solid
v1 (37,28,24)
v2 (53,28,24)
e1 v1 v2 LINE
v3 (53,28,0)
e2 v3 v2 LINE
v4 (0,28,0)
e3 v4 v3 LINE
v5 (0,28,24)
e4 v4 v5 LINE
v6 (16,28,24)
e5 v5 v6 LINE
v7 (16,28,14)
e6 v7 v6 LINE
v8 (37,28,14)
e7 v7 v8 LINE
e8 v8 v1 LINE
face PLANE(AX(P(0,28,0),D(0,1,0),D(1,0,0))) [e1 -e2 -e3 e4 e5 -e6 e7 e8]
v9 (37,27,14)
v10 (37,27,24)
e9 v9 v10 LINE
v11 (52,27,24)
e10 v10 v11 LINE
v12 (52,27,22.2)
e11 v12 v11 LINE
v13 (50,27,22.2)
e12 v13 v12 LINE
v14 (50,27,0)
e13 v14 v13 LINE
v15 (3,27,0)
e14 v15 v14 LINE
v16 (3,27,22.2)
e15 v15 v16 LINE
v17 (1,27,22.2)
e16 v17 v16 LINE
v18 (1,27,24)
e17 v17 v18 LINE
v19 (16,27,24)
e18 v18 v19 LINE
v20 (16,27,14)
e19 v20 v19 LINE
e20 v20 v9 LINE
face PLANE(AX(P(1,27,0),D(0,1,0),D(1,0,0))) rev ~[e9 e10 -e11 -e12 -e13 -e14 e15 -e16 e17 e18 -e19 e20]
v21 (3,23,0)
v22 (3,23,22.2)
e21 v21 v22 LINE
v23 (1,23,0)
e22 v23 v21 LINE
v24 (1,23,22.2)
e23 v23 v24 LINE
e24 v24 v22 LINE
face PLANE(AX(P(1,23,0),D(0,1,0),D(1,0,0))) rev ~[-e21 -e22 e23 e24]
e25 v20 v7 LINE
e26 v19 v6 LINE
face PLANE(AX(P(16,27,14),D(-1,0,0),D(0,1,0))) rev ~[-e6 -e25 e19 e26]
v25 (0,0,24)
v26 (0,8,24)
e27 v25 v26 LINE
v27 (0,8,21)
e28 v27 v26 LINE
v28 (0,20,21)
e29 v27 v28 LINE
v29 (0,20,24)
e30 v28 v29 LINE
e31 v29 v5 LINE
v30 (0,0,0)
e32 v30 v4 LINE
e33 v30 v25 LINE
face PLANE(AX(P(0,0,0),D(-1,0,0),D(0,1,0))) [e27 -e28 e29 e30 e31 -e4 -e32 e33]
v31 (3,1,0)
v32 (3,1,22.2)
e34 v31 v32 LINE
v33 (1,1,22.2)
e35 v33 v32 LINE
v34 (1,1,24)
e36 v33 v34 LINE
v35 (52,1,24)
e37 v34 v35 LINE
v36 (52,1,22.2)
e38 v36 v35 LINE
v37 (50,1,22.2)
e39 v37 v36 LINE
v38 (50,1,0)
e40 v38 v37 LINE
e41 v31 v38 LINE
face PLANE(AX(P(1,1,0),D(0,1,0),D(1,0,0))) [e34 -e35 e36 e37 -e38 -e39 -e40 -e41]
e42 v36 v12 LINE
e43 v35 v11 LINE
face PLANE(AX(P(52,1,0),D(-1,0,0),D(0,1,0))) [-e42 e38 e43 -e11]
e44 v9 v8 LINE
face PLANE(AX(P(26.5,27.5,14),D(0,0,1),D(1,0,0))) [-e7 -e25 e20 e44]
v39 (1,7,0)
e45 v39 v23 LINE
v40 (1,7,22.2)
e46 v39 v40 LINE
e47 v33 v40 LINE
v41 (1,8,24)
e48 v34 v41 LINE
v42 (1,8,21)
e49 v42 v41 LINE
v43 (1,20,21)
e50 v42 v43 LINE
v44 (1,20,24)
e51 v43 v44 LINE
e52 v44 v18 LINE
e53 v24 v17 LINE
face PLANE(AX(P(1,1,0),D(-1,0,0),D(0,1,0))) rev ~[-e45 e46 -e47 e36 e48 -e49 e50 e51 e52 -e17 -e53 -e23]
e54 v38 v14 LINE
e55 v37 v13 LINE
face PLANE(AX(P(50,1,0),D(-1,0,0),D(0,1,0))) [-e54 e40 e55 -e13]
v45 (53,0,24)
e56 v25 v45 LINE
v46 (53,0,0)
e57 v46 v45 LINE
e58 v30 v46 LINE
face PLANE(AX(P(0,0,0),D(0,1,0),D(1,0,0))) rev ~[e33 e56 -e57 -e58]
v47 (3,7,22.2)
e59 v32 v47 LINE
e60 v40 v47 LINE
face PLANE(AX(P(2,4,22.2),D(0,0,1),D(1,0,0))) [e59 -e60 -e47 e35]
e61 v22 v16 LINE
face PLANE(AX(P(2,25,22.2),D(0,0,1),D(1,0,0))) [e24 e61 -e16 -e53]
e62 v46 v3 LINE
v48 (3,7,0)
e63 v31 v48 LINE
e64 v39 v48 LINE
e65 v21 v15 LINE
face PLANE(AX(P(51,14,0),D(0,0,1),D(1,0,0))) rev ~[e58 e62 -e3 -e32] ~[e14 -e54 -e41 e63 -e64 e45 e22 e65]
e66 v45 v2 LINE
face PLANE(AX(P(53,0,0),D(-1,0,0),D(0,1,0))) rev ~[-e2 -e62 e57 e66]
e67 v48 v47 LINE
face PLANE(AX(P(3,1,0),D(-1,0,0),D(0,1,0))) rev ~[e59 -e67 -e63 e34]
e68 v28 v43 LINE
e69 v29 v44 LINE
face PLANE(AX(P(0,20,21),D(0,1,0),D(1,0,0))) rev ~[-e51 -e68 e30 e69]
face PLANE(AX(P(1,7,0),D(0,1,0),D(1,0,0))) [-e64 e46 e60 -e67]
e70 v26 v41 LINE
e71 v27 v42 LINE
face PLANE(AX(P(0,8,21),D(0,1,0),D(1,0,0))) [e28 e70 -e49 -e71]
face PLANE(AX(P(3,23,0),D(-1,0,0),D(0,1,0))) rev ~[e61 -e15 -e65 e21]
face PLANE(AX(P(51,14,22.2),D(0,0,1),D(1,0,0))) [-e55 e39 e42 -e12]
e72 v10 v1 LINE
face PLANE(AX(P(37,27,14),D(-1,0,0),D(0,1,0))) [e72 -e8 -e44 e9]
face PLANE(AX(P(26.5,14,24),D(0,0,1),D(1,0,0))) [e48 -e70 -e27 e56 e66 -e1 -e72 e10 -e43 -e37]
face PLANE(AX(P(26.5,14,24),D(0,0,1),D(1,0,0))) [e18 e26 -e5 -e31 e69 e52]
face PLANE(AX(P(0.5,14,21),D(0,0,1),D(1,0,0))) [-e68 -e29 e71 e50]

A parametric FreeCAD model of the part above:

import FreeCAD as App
import Part
import Sketcher
from FreeCAD import Vector
Q = App.Units.Quantity


def add_polygon(sketch, points):
    """Adds a closed chain of lines whose ends are joined by coincident constraints."""
    first, n = sketch.GeometryCount, len(points)
    for a, b in zip(points, points[1:] + points[:1]):
        sketch.addGeometry(Part.LineSegment(App.Vector(*a, 0), App.Vector(*b, 0)), False)
    for i in range(n):
        sketch.addConstraint(Sketcher.Constraint("Coincident", first + i, 2, first + (i + 1) % n, 1))

doc = App.newDocument("Part")
body = doc.addObject("PartDesign::Body", "Body")

# Sketch on XY plane
sketch1 = body.newObject("Sketcher::SketchObject", "Sketch")
sketch1.AttachmentSupport = (doc.getObject("XY_Plane"), [""])
sketch1.MapMode = "FlatFace"
sketch1.AttachmentOffset = App.Placement(Vector(0, 0, 21), App.Rotation())
add_polygon(sketch1, [(0, 20), (0, 8), (1, 8), (1, 20)])  # lines 0-3
sketch1.addConstraint(Sketcher.Constraint("Vertical", 0))
sketch1.addConstraint(Sketcher.Constraint("Horizontal", 1))
sketch1.addConstraint(Sketcher.Constraint("Vertical", 2))
sketch1.addConstraint(Sketcher.Constraint("Horizontal", 3))
sketch1.addConstraint(Sketcher.Constraint("PointOnObject", 0, 2, -2))
sketch1.addConstraint(Sketcher.Constraint("DistanceX", 1, 1, 1, 2, Q("1 mm")))
sketch1.addConstraint(Sketcher.Constraint("DistanceY", 0, 2, 0, 1, Q("12 mm")))
sketch1.addConstraint(Sketcher.Constraint("DistanceY", -1, 1, 0, 2, Q("8 mm")))
pad1 = body.newObject("PartDesign::Pad", "Pad")
pad1.Profile = sketch1
pad1.Length = 3
body2 = doc.addObject("PartDesign::Body", "Body001")

# Sketch on XY plane
sketch2 = body2.newObject("Sketcher::SketchObject", "Sketch001")
sketch2.AttachmentSupport = (doc.getObject("XY_Plane001"), [""])
sketch2.MapMode = "FlatFace"
sketch2.AttachmentOffset = App.Placement(Vector(0, 0, 14), App.Rotation())
add_polygon(sketch2, [(16, 28), (16, 27), (37, 27), (37, 28)])  # lines 0-3
sketch2.addConstraint(Sketcher.Constraint("Vertical", 0))
sketch2.addConstraint(Sketcher.Constraint("Horizontal", 1))
sketch2.addConstraint(Sketcher.Constraint("Vertical", 2))
sketch2.addConstraint(Sketcher.Constraint("Horizontal", 3))
sketch2.addConstraint(Sketcher.Constraint("DistanceX", 1, 1, 1, 2, Q("21 mm")))
sketch2.addConstraint(Sketcher.Constraint("DistanceY", 0, 2, 0, 1, Q("1 mm")))
sketch2.addConstraint(Sketcher.Constraint("DistanceX", -1, 1, 0, 2, Q("16 mm")))
sketch2.addConstraint(Sketcher.Constraint("DistanceY", -1, 1, 0, 2, Q("27 mm")))
pad2 = body2.newObject("PartDesign::Pad", "Pad001")
pad2.Profile = sketch2
pad2.Length = 10
body3 = doc.addObject("PartDesign::Body", "Body002")

# Sketch on XY plane
sketch3 = body3.newObject("Sketcher::SketchObject", "Sketch002")
sketch3.AttachmentSupport = (doc.getObject("XY_Plane002"), [""])
sketch3.MapMode = "FlatFace"
add_polygon(sketch3, [(50, 27), (50, 1), (52, 1), (52, 27)])  # lines 0-3
sketch3.addConstraint(Sketcher.Constraint("Vertical", 0))
sketch3.addConstraint(Sketcher.Constraint("Horizontal", 1))
sketch3.addConstraint(Sketcher.Constraint("Vertical", 2))
sketch3.addConstraint(Sketcher.Constraint("Horizontal", 3))
sketch3.addConstraint(Sketcher.Constraint("DistanceX", 1, 1, 1, 2, Q("2 mm")))
sketch3.addConstraint(Sketcher.Constraint("DistanceY", 0, 2, 0, 1, Q("26 mm")))
sketch3.addConstraint(Sketcher.Constraint("DistanceX", -1, 1, 0, 2, Q("50 mm")))
sketch3.addConstraint(Sketcher.Constraint("DistanceY", -1, 1, 0, 2, Q("1 mm")))
pad3 = body3.newObject("PartDesign::Pad", "Pad002")
pad3.Profile = sketch3
pad3.Length = 22.2
body4 = doc.addObject("PartDesign::Body", "Body003")

# Sketch on XY plane
sketch4 = body4.newObject("Sketcher::SketchObject", "Sketch003")
sketch4.AttachmentSupport = (doc.getObject("XY_Plane003"), [""])
sketch4.MapMode = "FlatFace"
add_polygon(sketch4, [(1, 27), (1, 23), (3, 23), (3, 27)])  # lines 0-3
sketch4.addConstraint(Sketcher.Constraint("Vertical", 0))
sketch4.addConstraint(Sketcher.Constraint("Horizontal", 1))
sketch4.addConstraint(Sketcher.Constraint("Vertical", 2))
sketch4.addConstraint(Sketcher.Constraint("Horizontal", 3))
sketch4.addConstraint(Sketcher.Constraint("DistanceX", 1, 1, 1, 2, Q("2 mm")))
sketch4.addConstraint(Sketcher.Constraint("DistanceY", 0, 2, 0, 1, Q("4 mm")))
sketch4.addConstraint(Sketcher.Constraint("DistanceX", -1, 1, 0, 2, Q("1 mm")))
sketch4.addConstraint(Sketcher.Constraint("DistanceY", -1, 1, 0, 2, Q("23 mm")))
pad4 = body4.newObject("PartDesign::Pad", "Pad003")
pad4.Profile = sketch4
pad4.Length = 22.2
body5 = doc.addObject("PartDesign::Body", "Body004")

# Sketch on XY plane
sketch5 = body5.newObject("Sketcher::SketchObject", "Sketch004")
sketch5.AttachmentSupport = (doc.getObject("XY_Plane004"), [""])
sketch5.MapMode = "FlatFace"
add_polygon(sketch5, [(1, 27), (1, 1), (52, 1), (52, 27)])  # lines 0-3
sketch5.addConstraint(Sketcher.Constraint("Vertical", 0))
sketch5.addConstraint(Sketcher.Constraint("Horizontal", 1))
sketch5.addConstraint(Sketcher.Constraint("Vertical", 2))
sketch5.addConstraint(Sketcher.Constraint("Horizontal", 3))
sketch5.addConstraint(Sketcher.Constraint("DistanceX", 1, 1, 1, 2, Q("51 mm")))
sketch5.addConstraint(Sketcher.Constraint("DistanceY", 0, 2, 0, 1, Q("26 mm")))
sketch5.addConstraint(Sketcher.Constraint("DistanceX", -1, 1, 0, 2, Q("1 mm")))
sketch5.addConstraint(Sketcher.Constraint("DistanceY", -1, 1, 0, 2, Q("1 mm")))
pad5 = body5.newObject("PartDesign::Pad", "Pad004")
pad5.Profile = sketch5
pad5.Length = 24
body6 = doc.addObject("PartDesign::Body", "Body005")

# Sketch on XY plane
sketch6 = body6.newObject("Sketcher::SketchObject", "Sketch005")
sketch6.AttachmentSupport = (doc.getObject("XY_Plane005"), [""])
sketch6.MapMode = "FlatFace"
add_polygon(sketch6, [(0, 28), (0, 0), (53, 0), (53, 28)])  # lines 0-3
sketch6.addConstraint(Sketcher.Constraint("Vertical", 0))
sketch6.addConstraint(Sketcher.Constraint("Horizontal", 1))
sketch6.addConstraint(Sketcher.Constraint("Vertical", 2))
sketch6.addConstraint(Sketcher.Constraint("Horizontal", 3))
sketch6.addConstraint(Sketcher.Constraint("Coincident", 0, 2, -1, 1))
sketch6.addConstraint(Sketcher.Constraint("DistanceX", 1, 1, 1, 2, Q("53 mm")))
sketch6.addConstraint(Sketcher.Constraint("DistanceY", 0, 2, 0, 1, Q("28 mm")))
pad6 = body6.newObject("PartDesign::Pad", "Pad005")
pad6.Profile = sketch6
pad6.Length = 24
doc.recompute()

boolean = body6.newObject("PartDesign::Boolean", "Boolean")
boolean.Type = "Cut"
boolean.addObjects([body5])
doc.recompute()

boolean2 = body6.newObject("PartDesign::Boolean", "Boolean001")
boolean2.Type = "Fuse"
boolean2.addObjects([body4])
body7 = doc.addObject("PartDesign::Body", "Body006")

# Sketch on XY plane
sketch7 = body7.newObject("Sketcher::SketchObject", "Sketch006")
sketch7.AttachmentSupport = (doc.getObject("XY_Plane006"), [""])
sketch7.MapMode = "FlatFace"
add_polygon(sketch7, [(1, 7), (1, 1), (3, 1), (3, 7)])  # lines 0-3
sketch7.addConstraint(Sketcher.Constraint("Vertical", 0))
sketch7.addConstraint(Sketcher.Constraint("Horizontal", 1))
sketch7.addConstraint(Sketcher.Constraint("Vertical", 2))
sketch7.addConstraint(Sketcher.Constraint("Horizontal", 3))
sketch7.addConstraint(Sketcher.Constraint("DistanceX", 1, 1, 1, 2, Q("2 mm")))
sketch7.addConstraint(Sketcher.Constraint("DistanceY", 0, 2, 0, 1, Q("6 mm")))
sketch7.addConstraint(Sketcher.Constraint("DistanceX", -1, 1, 0, 2, Q("1 mm")))
sketch7.addConstraint(Sketcher.Constraint("DistanceY", -1, 1, 0, 2, Q("1 mm")))
pad7 = body7.newObject("PartDesign::Pad", "Pad006")
pad7.Profile = sketch7
pad7.Length = 22.2
doc.recompute()

boolean3 = body7.newObject("PartDesign::Boolean", "Boolean002")
boolean3.Type = "Fuse"
boolean3.addObjects([body6])
doc.recompute()

boolean4 = body7.newObject("PartDesign::Boolean", "Boolean003")
boolean4.Type = "Fuse"
boolean4.addObjects([body3])
doc.recompute()

boolean5 = body7.newObject("PartDesign::Boolean", "Boolean004")
boolean5.Type = "Cut"
boolean5.addObjects([body2])
doc.recompute()

boolean6 = body7.newObject("PartDesign::Boolean", "Boolean005")
boolean6.Type = "Cut"
boolean6.addObjects([body])

doc.recompute()
